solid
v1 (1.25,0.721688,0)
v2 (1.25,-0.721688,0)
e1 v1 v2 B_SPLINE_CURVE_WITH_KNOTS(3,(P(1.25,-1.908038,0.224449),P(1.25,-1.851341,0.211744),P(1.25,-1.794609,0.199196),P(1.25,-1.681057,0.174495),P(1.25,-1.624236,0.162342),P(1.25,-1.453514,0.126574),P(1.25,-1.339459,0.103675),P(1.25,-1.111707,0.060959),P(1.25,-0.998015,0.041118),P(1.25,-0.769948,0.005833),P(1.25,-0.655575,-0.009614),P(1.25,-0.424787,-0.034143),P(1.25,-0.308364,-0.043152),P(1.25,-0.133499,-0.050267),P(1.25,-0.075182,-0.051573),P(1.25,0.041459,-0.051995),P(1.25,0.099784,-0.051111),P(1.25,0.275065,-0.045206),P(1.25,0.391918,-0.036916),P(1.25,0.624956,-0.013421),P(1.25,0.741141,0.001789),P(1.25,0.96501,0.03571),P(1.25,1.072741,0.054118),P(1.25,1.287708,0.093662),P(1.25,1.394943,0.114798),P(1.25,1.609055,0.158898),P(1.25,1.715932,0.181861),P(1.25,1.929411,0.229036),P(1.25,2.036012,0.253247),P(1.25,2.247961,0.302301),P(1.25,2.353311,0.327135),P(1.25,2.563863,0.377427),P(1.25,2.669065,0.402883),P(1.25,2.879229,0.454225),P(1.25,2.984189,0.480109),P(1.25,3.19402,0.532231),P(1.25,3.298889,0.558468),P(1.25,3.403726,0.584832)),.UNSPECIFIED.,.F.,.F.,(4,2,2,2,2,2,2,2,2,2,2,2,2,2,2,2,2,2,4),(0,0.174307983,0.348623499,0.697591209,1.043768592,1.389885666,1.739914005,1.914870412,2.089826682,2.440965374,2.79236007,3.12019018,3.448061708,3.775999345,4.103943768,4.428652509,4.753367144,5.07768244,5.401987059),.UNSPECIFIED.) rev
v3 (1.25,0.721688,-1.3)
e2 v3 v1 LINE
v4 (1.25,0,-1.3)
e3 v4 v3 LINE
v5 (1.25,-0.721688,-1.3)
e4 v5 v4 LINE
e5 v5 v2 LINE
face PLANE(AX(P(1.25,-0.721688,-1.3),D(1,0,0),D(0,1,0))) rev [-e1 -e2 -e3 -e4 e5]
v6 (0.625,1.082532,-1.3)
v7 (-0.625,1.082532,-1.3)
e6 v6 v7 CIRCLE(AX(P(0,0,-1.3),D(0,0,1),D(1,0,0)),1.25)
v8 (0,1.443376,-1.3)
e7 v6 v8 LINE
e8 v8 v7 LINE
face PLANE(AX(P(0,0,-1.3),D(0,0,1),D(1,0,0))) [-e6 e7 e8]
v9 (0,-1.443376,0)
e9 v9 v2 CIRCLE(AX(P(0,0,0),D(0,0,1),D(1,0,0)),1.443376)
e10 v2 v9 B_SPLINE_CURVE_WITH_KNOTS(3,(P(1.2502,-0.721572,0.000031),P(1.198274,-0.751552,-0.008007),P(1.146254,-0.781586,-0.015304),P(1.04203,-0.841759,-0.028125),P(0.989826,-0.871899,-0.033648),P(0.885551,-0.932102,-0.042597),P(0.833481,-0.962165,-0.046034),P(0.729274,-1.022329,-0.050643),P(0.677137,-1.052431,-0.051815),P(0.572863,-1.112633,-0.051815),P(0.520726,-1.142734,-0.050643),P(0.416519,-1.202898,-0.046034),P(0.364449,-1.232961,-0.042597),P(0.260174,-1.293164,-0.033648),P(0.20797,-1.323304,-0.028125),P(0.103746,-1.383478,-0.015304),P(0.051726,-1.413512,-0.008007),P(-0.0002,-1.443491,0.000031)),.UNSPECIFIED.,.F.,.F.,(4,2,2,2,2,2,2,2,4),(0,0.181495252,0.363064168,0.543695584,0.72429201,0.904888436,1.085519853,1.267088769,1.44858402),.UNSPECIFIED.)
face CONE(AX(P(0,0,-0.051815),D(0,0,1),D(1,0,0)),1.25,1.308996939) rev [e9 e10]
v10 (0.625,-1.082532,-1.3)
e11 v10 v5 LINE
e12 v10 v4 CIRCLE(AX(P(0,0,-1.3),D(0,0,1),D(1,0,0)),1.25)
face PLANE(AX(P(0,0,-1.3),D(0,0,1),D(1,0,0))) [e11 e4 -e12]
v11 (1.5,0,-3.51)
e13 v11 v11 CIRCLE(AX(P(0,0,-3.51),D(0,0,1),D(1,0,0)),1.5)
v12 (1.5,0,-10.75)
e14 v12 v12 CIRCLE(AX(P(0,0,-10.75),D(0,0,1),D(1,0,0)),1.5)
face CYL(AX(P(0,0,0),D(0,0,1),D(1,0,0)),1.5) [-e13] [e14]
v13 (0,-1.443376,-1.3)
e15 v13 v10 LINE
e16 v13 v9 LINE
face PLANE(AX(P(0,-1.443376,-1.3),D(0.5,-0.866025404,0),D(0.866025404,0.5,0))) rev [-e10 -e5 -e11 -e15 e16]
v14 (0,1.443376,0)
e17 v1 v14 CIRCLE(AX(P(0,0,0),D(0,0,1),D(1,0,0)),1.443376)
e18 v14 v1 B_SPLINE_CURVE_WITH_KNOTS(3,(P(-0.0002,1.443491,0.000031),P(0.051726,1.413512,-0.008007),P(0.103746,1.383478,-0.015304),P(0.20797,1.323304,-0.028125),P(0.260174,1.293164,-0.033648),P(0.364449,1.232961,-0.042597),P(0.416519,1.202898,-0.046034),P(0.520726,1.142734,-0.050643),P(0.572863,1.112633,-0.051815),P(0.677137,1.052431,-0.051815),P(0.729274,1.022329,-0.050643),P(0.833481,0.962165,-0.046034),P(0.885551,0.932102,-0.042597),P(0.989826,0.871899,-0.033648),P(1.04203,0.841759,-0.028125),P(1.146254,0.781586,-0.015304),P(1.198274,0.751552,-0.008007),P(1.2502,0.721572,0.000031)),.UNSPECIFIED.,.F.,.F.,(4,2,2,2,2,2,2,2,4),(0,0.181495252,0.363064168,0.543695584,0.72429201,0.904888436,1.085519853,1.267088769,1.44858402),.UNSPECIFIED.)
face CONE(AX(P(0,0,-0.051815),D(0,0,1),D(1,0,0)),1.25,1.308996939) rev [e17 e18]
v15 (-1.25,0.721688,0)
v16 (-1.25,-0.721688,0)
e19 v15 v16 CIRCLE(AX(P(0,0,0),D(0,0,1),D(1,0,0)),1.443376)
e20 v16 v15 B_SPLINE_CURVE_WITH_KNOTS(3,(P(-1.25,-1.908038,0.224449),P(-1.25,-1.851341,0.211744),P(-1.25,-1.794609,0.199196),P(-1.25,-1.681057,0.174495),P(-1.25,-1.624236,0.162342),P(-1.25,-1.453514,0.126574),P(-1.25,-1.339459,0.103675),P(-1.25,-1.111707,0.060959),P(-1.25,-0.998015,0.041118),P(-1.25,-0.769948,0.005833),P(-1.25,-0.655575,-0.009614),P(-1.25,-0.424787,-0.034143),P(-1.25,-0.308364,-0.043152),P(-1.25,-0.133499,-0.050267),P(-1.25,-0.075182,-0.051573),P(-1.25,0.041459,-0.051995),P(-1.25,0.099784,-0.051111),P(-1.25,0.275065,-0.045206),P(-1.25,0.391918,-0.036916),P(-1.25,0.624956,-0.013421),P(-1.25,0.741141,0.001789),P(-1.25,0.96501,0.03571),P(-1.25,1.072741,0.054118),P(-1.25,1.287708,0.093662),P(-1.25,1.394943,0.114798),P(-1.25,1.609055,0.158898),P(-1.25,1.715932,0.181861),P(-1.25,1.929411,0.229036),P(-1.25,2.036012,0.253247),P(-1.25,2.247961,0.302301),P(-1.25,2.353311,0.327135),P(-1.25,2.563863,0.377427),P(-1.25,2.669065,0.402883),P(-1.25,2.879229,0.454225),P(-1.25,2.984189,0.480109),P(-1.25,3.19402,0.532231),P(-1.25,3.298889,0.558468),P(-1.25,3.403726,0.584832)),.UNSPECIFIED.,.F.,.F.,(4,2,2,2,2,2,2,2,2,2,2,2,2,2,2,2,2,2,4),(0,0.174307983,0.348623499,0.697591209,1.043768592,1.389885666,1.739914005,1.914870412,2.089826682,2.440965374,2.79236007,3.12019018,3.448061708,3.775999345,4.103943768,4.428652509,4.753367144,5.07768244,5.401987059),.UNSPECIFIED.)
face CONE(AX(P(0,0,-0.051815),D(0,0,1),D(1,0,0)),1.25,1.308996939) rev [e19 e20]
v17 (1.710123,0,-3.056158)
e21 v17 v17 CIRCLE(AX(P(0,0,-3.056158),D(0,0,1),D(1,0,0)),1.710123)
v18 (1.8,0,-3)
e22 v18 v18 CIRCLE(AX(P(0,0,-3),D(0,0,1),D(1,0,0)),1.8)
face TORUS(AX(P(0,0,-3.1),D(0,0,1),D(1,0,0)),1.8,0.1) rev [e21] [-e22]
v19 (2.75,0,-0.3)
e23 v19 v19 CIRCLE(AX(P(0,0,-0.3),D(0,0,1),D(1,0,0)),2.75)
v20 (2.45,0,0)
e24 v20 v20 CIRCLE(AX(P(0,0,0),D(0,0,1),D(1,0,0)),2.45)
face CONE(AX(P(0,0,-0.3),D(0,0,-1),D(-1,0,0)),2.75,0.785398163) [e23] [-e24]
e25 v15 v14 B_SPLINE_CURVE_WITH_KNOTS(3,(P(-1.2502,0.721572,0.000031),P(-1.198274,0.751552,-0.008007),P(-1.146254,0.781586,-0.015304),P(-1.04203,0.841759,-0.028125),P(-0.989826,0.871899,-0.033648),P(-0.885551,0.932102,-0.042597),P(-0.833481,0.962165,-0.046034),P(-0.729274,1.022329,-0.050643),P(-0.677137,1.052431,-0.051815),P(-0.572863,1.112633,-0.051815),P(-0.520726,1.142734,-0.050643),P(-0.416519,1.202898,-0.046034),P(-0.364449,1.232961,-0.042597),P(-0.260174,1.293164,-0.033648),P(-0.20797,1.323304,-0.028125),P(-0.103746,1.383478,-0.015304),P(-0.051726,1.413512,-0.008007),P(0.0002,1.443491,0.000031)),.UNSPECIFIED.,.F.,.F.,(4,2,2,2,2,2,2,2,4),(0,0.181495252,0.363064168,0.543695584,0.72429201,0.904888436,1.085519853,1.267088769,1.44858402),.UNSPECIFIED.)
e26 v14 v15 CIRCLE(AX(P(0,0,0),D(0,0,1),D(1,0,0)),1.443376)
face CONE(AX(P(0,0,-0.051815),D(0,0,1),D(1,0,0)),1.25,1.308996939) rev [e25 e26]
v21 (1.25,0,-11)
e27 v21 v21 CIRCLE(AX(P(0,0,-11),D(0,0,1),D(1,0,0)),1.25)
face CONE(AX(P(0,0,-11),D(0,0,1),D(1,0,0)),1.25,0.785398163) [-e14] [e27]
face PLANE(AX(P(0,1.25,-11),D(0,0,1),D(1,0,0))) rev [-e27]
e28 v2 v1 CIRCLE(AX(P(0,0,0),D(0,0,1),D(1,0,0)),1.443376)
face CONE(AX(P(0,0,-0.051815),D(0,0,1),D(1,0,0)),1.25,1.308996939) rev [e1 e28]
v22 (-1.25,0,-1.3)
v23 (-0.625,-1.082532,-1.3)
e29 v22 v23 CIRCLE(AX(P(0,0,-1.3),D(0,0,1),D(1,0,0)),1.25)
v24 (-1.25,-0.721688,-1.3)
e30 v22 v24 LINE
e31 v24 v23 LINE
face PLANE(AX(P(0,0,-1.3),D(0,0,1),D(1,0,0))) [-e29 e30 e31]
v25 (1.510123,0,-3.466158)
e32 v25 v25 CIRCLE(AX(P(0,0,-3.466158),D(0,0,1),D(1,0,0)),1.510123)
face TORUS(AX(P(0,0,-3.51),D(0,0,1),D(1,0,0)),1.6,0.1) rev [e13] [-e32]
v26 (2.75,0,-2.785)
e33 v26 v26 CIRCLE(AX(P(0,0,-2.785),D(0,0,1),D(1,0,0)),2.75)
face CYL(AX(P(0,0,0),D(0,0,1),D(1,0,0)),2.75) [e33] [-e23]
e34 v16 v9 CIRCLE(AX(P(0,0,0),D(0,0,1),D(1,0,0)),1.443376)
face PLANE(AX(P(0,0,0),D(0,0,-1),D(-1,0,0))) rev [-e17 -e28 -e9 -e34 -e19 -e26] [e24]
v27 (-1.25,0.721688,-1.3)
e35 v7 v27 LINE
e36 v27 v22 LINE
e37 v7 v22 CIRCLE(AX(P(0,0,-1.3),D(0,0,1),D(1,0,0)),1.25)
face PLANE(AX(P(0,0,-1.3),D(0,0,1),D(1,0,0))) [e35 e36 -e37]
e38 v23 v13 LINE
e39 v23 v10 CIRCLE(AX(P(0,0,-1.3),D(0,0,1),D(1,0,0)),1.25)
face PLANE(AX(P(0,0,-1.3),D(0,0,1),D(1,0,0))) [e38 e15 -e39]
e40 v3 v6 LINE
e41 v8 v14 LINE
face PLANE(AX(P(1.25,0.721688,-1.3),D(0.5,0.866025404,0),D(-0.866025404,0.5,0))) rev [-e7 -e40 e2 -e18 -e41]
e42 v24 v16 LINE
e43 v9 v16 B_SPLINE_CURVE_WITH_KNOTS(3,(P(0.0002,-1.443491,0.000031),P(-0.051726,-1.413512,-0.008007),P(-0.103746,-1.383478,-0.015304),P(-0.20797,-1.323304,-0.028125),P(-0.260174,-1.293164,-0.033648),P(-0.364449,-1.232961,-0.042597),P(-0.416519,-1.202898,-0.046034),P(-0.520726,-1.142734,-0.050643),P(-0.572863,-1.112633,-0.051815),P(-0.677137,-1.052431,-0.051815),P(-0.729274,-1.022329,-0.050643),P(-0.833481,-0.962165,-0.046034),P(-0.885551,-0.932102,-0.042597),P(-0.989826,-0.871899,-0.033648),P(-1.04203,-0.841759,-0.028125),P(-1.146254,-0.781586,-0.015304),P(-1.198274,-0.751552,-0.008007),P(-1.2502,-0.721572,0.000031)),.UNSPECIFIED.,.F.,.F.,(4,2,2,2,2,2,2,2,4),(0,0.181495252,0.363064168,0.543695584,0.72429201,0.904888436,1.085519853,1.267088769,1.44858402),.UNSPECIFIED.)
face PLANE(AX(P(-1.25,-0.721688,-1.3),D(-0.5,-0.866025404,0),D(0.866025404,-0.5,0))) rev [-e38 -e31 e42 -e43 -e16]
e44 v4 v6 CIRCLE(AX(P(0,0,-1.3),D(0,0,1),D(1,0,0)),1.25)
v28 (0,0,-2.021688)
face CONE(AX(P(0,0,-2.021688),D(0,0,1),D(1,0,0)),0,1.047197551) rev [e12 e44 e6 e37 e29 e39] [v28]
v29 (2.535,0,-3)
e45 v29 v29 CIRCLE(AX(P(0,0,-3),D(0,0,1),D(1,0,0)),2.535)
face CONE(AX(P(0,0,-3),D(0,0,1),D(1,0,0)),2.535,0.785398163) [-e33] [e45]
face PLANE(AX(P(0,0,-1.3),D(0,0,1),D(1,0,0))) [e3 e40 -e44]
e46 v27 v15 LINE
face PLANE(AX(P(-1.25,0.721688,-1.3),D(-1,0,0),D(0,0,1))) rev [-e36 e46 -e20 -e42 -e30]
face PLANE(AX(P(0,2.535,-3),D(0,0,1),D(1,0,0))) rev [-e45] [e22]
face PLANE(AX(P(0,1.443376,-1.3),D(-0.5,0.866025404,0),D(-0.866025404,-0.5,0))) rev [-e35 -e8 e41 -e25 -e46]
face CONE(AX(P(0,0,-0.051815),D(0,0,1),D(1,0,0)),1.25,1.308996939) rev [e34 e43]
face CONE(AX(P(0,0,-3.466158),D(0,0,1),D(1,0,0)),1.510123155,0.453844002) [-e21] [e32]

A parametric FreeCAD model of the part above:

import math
import FreeCAD as App
import Part
import Sketcher
Q = App.Units.Quantity

doc = App.newDocument("Part")
params = doc.addObject("Spreadsheet::Sheet", "Params")
for row, (alias, value) in enumerate([
    ("sketch1_radius", "0.1 mm"),
    ("sketch1_height", "11 mm"),
    ("sketch1_width", "2.45 mm"),
    ("sketch1_width2", "1.25 mm"),
    ("sketch1_height2", "7.24 mm"),
    ("revolution_angle", "360 deg"),
    ("pocket1_length", "1.3 mm"),
    ("sketch3_width", "1.25 mm"),
    ("groove_angle", "360 deg"),
    ("groove2_angle", "360 deg"),
], start=1):
    params.set(f"A{row}", alias)
    params.set(f"B{row}", "=" + value)
    params.setAlias(f"B{row}", alias)

body = doc.addObject("PartDesign::Body", "Body")

# Sketch on YZ plane
sketch1 = body.newObject("Sketcher::SketchObject", "Sketch")
sketch1.AttachmentSupport = (doc.getObject("YZ_Plane"), [""])
sketch1.MapMode = "FlatFace"
sketch1.addGeometry([
    Part.LineSegment(App.Vector(2.45, 0, 0), App.Vector(0, 0, 0)),  # 0
    Part.LineSegment(App.Vector(0, 0, 0), App.Vector(0, -11, 0)),  # 1
    Part.LineSegment(App.Vector(0, -11, 0), App.Vector(1.25, -11, 0)),  # 2
    Part.LineSegment(App.Vector(1.25, -11, 0), App.Vector(1.5, -10.75, 0)),  # 3
    Part.LineSegment(App.Vector(1.5, -10.75, 0), App.Vector(1.5, -3.51, 0)),  # 4
    Part.ArcOfCircle(Part.Circle(App.Vector(1.6, -3.51, 0), App.Vector(0, 0, 1), 0.1), math.radians(154), math.radians(180)),  # 5
    Part.LineSegment(App.Vector(1.51, -3.466, 0), App.Vector(1.71, -3.056, 0)),  # 6
    Part.ArcOfCircle(Part.Circle(App.Vector(1.8, -3.1, 0), App.Vector(0, 0, 1), 0.1), math.radians(90), math.radians(154)),  # 7
    Part.LineSegment(App.Vector(1.8, -3, 0), App.Vector(2.535, -3, 0)),  # 8
    Part.LineSegment(App.Vector(2.535, -3, 0), App.Vector(2.75, -2.785, 0)),  # 9
    Part.LineSegment(App.Vector(2.75, -2.785, 0), App.Vector(2.75, -0.3, 0)),  # 10
    Part.LineSegment(App.Vector(2.75, -0.3, 0), App.Vector(2.45, 0, 0)),  # 11
], False)
sketch1.addConstraint([
    Sketcher.Constraint("Coincident", 0, 2, 1, 1),
    Sketcher.Constraint("Coincident", 1, 2, 2, 1),
    Sketcher.Constraint("Coincident", 2, 2, 3, 1),
    Sketcher.Constraint("Coincident", 3, 2, 4, 1),
    Sketcher.Constraint("Tangent", 4, 2, 5, 2),
    Sketcher.Constraint("Tangent", 5, 1, 6, 1),
    Sketcher.Constraint("Tangent", 6, 2, 7, 2),
    Sketcher.Constraint("Tangent", 7, 1, 8, 1),
    Sketcher.Constraint("Coincident", 8, 2, 9, 1),
    Sketcher.Constraint("Coincident", 9, 2, 10, 1),
    Sketcher.Constraint("Coincident", 10, 2, 11, 1),
    Sketcher.Constraint("Coincident", 11, 2, 0, 1),
    Sketcher.Constraint("Horizontal", 0),
    Sketcher.Constraint("Vertical", 1),
    Sketcher.Constraint("Horizontal", 2),
    Sketcher.Constraint("Vertical", 4),
    Sketcher.Constraint("Horizontal", 8),
    Sketcher.Constraint("Vertical", 10),
    Sketcher.Constraint("Coincident", 0, 2, -1, 1),
    Sketcher.Constraint("Equal", 5, 7),
    Sketcher.Constraint("Parallel", 3, 9),
    Sketcher.Constraint("Perpendicular", 9, 11),
    Sketcher.Constraint("Radius", 5, 0.1),
    Sketcher.Constraint("DistanceY", 1, 2, 1, 1, 11.0),
    Sketcher.Constraint("Angle", 3, Q("45 deg")),
    Sketcher.Constraint("DistanceY", 7, 1, -1, 1, 3.0),
    Sketcher.Constraint("DistanceX", 0, 2, 0, 1, 2.45),
    Sketcher.Constraint("DistanceX", 2, 1, 2, 2, 1.25),
    Sketcher.Constraint("DistanceY", 4, 1, 4, 2, 7.24),
    Sketcher.Constraint("DistanceX", -1, 1, 5, 3, 1.6),
    Sketcher.Constraint("DistanceX", -1, 1, 7, 3, 1.8),
    Sketcher.Constraint("DistanceY", 10, 2, -1, 1, 0.3),
    Sketcher.Constraint("DistanceX", 8, 1, 8, 2, 0.735),
])
sketch1.setExpression("Constraints[22]", "Params.sketch1_radius")
sketch1.setExpression("Constraints[23]", "Params.sketch1_height")
sketch1.setExpression("Constraints[26]", "Params.sketch1_width")
sketch1.setExpression("Constraints[27]", "Params.sketch1_width2")
sketch1.setExpression("Constraints[28]", "Params.sketch1_height2")
revolution = body.newObject("PartDesign::Revolution", "Revolution")
revolution.Profile = sketch1
revolution.ReferenceAxis = (sketch1, ["V_Axis"])
revolution.setExpression("Angle", "Params.revolution_angle")

# Sketch on XY plane
sketch2 = body.newObject("Sketcher::SketchObject", "Sketch001")
sketch2.AttachmentSupport = (doc.getObject("XY_Plane"), [""])
sketch2.MapMode = "FlatFace"
sketch2.addGeometry([
    Part.LineSegment(App.Vector(0, 1.4, 0), App.Vector(-1.2, 0.7, 0)),  # 0
    Part.LineSegment(App.Vector(-1.2, 0.7, 0), App.Vector(-1.2, -0.7, 0)),  # 1
    Part.LineSegment(App.Vector(-1.2, -0.7, 0), App.Vector(0, -1.4, 0)),  # 2
    Part.LineSegment(App.Vector(0, -1.4, 0), App.Vector(1.2, -0.7, 0)),  # 3
    Part.LineSegment(App.Vector(1.2, -0.7, 0), App.Vector(1.2, 0.7, 0)),  # 4
    Part.LineSegment(App.Vector(1.2, 0.7, 0), App.Vector(0, 1.4, 0)),  # 5
], False)
sketch2.addConstraint([
    Sketcher.Constraint("Coincident", 0, 2, 1, 1),
    Sketcher.Constraint("Coincident", 1, 2, 2, 1),
    Sketcher.Constraint("Coincident", 2, 2, 3, 1),
    Sketcher.Constraint("Coincident", 3, 2, 4, 1),
    Sketcher.Constraint("Coincident", 4, 2, 5, 1),
    Sketcher.Constraint("Coincident", 5, 2, 0, 1),
    Sketcher.Constraint("Vertical", 1),
    Sketcher.Constraint("Vertical", 4),
    Sketcher.Constraint("Symmetric", 0, 2, 3, 2, -1, 1),
    Sketcher.Constraint("Symmetric", 2, 2, 5, 2, -1, 1),
    Sketcher.Constraint("PointOnObject", 2, 2, -2),
    Sketcher.Constraint("Parallel", 2, 5),
    Sketcher.Constraint("Horizontal", 1, 2, 3, 2),
    Sketcher.Constraint("Angle", 0, Q("-150 deg")),
    Sketcher.Constraint("DistanceX", 1, 2, 3, 2, 2.5),
    Sketcher.Constraint("DistanceY", 1, 2, 1, 1, 1.443376),
])
pocket1 = body.newObject("PartDesign::Pocket", "Pocket")
pocket1.Profile = sketch2
pocket1.setExpression("Length", "Params.pocket1_length")

# Sketch on YZ plane
sketch3 = body.newObject("Sketcher::SketchObject", "Sketch002")
sketch3.AttachmentSupport = (doc.getObject("YZ_Plane"), [""])
sketch3.MapMode = "FlatFace"
sketch3.addGeometry([
    Part.LineSegment(App.Vector(1.2, -1.3, 0), App.Vector(0, -1.3, 0)),
    Part.LineSegment(App.Vector(0, -1.3, 0), App.Vector(0, -2, 0)),
    Part.LineSegment(App.Vector(0, -2, 0), App.Vector(1.2, -1.3, 0)),
], False)
sketch3.addConstraint([
    Sketcher.Constraint("Coincident", 0, 2, 1, 1),
    Sketcher.Constraint("Coincident", 1, 2, 2, 1),
    Sketcher.Constraint("Coincident", 2, 2, 0, 1),
    Sketcher.Constraint("Horizontal", 0),
    Sketcher.Constraint("Vertical", 1),
    Sketcher.Constraint("PointOnObject", 0, 2, -2),
    Sketcher.Constraint("Angle", 2, Q("30 deg")),
    Sketcher.Constraint("DistanceX", 0, 2, 0, 1, 1.25),
    Sketcher.Constraint("DistanceY", 0, 2, -1, 1, 1.3),
])
sketch3.setExpression("Constraints[7]", "Params.sketch3_width")
groove = body.newObject("PartDesign::Groove", "Groove")
groove.Profile = sketch3
groove.ReferenceAxis = (sketch3, ["V_Axis"])
groove.setExpression("Angle", "Params.groove_angle")

# Sketch on YZ plane
sketch4 = body.newObject("Sketcher::SketchObject", "Sketch003")
sketch4.AttachmentSupport = (doc.getObject("YZ_Plane"), [""])
sketch4.MapMode = "FlatFace"
sketch4.addGeometry([
    Part.LineSegment(App.Vector(1.44, 0, 0), App.Vector(1.25, 0, 0)),
    Part.LineSegment(App.Vector(1.25, 0, 0), App.Vector(1.25, -0.05, 0)),
    Part.LineSegment(App.Vector(1.25, -0.05, 0), App.Vector(1.44, 0, 0)),
], False)
sketch4.addConstraint([
    Sketcher.Constraint("Coincident", 0, 2, 1, 1),
    Sketcher.Constraint("Coincident", 1, 2, 2, 1),
    Sketcher.Constraint("Coincident", 2, 2, 0, 1),
    Sketcher.Constraint("Horizontal", 0),
    Sketcher.Constraint("Vertical", 1),
    Sketcher.Constraint("PointOnObject", 0, 2, -1),
    Sketcher.Constraint("Angle", 2, Q("15 deg")),
    Sketcher.Constraint("DistanceX", -1, 1, 0, 2, 1.25),
    Sketcher.Constraint("DistanceX", 0, 2, 0, 1, 0.193376),
])
groove2 = body.newObject("PartDesign::Groove", "Groove001")
groove2.Profile = sketch4
groove2.ReferenceAxis = (sketch4, ["V_Axis"])
groove2.setExpression("Angle", "Params.groove2_angle")

doc.recompute()
